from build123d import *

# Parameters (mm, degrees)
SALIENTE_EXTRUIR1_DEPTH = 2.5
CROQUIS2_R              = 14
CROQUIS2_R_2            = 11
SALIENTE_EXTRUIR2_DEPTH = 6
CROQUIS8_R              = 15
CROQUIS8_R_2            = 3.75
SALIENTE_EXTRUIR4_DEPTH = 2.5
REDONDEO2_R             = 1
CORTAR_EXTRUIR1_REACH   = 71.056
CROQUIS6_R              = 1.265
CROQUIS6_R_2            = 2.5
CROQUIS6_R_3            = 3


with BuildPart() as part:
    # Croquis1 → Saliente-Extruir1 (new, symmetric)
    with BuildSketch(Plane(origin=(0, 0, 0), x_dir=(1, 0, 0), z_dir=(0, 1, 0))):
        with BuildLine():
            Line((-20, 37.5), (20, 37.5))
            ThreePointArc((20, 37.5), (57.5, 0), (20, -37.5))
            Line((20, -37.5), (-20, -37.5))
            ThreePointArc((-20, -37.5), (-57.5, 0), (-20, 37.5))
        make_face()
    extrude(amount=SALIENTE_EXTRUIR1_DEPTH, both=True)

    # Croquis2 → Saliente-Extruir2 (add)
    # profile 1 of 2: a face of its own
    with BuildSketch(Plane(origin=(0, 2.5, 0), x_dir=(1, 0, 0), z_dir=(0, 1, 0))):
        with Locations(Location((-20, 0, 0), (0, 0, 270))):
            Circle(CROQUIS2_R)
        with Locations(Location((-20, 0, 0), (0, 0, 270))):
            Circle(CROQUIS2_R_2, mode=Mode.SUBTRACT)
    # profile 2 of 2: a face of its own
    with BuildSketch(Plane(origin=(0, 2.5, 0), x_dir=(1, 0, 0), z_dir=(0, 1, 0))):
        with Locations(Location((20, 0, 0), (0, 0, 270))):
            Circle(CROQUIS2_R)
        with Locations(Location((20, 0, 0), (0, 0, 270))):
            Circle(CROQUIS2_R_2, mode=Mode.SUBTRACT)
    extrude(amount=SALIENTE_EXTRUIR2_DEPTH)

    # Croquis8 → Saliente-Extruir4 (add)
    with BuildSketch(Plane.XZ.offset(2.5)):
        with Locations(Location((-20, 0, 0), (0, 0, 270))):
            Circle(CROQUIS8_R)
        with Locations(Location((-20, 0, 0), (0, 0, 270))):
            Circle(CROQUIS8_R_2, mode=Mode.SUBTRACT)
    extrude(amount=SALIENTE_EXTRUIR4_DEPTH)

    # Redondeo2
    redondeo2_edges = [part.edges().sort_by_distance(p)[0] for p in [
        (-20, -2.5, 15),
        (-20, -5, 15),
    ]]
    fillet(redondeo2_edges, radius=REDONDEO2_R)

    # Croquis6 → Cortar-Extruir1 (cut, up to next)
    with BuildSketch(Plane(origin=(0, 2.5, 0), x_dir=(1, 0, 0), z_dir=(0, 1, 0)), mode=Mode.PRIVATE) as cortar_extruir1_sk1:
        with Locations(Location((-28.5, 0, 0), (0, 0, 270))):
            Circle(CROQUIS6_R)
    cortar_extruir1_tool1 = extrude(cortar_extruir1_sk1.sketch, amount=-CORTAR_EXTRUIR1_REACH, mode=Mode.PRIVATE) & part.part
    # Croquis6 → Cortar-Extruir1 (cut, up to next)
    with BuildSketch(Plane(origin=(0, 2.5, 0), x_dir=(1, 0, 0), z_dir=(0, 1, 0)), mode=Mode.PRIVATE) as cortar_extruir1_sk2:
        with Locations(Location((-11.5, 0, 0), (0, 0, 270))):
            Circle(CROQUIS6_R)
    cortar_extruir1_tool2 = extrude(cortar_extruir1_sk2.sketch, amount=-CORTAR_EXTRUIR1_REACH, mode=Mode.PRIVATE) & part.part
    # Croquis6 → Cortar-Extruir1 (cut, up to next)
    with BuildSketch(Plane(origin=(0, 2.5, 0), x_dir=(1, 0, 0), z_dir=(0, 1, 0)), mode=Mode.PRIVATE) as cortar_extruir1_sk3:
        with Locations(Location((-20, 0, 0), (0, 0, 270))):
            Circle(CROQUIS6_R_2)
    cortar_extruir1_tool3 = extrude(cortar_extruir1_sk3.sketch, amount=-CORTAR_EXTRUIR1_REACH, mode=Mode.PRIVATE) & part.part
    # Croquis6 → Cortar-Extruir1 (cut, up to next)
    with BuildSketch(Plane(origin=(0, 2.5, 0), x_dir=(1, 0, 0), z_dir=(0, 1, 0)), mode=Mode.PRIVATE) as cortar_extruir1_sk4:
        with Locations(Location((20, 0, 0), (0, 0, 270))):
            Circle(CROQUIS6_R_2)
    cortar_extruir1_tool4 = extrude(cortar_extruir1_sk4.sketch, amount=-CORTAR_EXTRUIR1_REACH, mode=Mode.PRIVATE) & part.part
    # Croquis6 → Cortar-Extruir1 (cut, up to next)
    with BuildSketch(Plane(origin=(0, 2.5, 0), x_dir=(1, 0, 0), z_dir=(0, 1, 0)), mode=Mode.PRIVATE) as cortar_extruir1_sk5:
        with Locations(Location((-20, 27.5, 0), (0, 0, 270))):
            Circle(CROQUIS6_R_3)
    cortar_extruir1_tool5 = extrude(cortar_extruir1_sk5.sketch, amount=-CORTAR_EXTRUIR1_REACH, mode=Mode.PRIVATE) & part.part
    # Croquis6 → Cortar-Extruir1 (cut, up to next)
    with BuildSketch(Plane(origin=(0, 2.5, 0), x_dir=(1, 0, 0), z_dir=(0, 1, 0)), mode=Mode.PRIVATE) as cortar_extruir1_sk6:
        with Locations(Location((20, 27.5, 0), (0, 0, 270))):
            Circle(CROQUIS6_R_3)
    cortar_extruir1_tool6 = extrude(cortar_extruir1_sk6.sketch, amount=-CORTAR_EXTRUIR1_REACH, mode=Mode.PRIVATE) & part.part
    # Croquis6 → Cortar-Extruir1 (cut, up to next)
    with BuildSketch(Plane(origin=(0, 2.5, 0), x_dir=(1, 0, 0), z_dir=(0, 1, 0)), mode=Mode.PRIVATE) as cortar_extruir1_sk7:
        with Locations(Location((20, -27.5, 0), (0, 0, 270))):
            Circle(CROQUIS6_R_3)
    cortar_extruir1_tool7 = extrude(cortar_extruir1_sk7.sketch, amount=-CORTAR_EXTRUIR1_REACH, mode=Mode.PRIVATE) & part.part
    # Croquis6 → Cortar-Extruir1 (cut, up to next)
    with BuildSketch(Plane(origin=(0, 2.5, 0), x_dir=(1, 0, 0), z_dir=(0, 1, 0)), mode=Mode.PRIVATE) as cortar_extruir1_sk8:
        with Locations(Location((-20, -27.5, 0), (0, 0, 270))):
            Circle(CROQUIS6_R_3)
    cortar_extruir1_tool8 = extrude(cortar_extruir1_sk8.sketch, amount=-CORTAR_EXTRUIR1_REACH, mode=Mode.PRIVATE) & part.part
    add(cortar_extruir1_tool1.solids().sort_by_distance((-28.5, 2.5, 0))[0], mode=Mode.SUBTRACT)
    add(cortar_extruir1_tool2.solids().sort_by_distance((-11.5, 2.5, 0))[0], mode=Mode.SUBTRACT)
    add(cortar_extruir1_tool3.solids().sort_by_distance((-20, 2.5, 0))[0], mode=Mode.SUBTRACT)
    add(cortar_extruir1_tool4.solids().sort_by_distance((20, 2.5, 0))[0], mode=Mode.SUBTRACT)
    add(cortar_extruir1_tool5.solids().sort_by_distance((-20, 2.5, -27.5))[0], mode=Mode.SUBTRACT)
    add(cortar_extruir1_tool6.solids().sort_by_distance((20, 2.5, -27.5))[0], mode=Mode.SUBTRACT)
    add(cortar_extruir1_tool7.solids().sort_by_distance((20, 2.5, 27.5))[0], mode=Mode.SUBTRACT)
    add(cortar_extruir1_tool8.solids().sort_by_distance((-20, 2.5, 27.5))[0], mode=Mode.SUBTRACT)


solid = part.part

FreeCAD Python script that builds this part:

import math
import FreeCAD as App
import Part
import Sketcher


def edges_at(feature, points):
    """Names of the edges that pass closest to the given points."""
    edges = feature.Shape.Edges
    near = lambda p: min(range(len(edges)), key=lambda i: edges[i].distToShape(Part.Vertex(*p))[0])
    return sorted({f"Edge{near(p) + 1}" for p in points})

doc = App.newDocument("Part")
body = doc.addObject("PartDesign::Body", "Body")

# Sketch on XZ plane
sketch1 = body.newObject("Sketcher::SketchObject", "Sketch")
sketch1.AttachmentSupport = (doc.getObject("XZ_Plane"), [""])
sketch1.MapMode = "FlatFace"
sketch1.addGeometry(Part.LineSegment(App.Vector(20, -38, 0), App.Vector(-20, -38, 0)), False)
sketch1.addGeometry(Part.ArcOfCircle(Part.Circle(App.Vector(-20, 0, 0), App.Vector(0, 0, 1), 38), math.radians(90), math.radians(270)), False)
sketch1.addGeometry(Part.LineSegment(App.Vector(-20, 38, 0), App.Vector(20, 38, 0)), False)
sketch1.addGeometry(Part.ArcOfCircle(Part.Circle(App.Vector(20, 0, 0), App.Vector(0, 0, 1), 38), math.radians(-90), math.radians(90)), False)
sketch1.addConstraint(Sketcher.Constraint("Tangent", 0, 2, 1, 2))
sketch1.addConstraint(Sketcher.Constraint("Tangent", 1, 1, 2, 1))
sketch1.addConstraint(Sketcher.Constraint("Tangent", 2, 2, 3, 2))
sketch1.addConstraint(Sketcher.Constraint("Tangent", 3, 1, 0, 1))
sketch1.addConstraint(Sketcher.Constraint("Horizontal", 0))
sketch1.addConstraint(Sketcher.Constraint("Horizontal", 2))
sketch1.addConstraint(Sketcher.Constraint("Symmetric", 1, 3, 3, 3, -1, 1))
sketch1.addConstraint(Sketcher.Constraint("Radius", 1, 37.5))
sketch1.addConstraint(Sketcher.Constraint("DistanceX", 0, 2, 0, 1, 40.0))
pad1 = body.newObject("PartDesign::Pad", "Pad")
pad1.Profile = sketch1
pad1.Length = 5
pad1.Midplane = True

# Sketch on XZ plane
sketch2 = body.newObject("Sketcher::SketchObject", "Sketch001")
sketch2.AttachmentSupport = (doc.getObject("XZ_Plane"), [""])
sketch2.MapMode = "FlatFace"
sketch2.AttachmentOffset = App.Placement(App.Vector(0, 0, -2.5), App.Rotation())
sketch2.addGeometry(Part.Circle(App.Vector(-20, 0, 0), App.Vector(0, 0, 1), 14), False)
sketch2.addGeometry(Part.Circle(App.Vector(-20, 0, 0), App.Vector(0, 0, 1), 11), False)
sketch2.addGeometry(Part.Circle(App.Vector(20, 0, 0), App.Vector(0, 0, 1), 14), False)
sketch2.addGeometry(Part.Circle(App.Vector(20, 0, 0), App.Vector(0, 0, 1), 11), False)
sketch2.addConstraint(Sketcher.Constraint("Coincident", 1, 3, 0, 3))
sketch2.addConstraint(Sketcher.Constraint("Coincident", 3, 3, 2, 3))
sketch2.addConstraint(Sketcher.Constraint("Equal", 0, 2))
sketch2.addConstraint(Sketcher.Constraint("Equal", 1, 3))
sketch2.addConstraint(Sketcher.Constraint("Symmetric", 0, 3, 2, 3, -1, 1))
sketch2.addConstraint(Sketcher.Constraint("PointOnObject", 0, 3, -1))
sketch2.addConstraint(Sketcher.Constraint("Diameter", 0, 28.0))
sketch2.addConstraint(Sketcher.Constraint("Diameter", 1, 22.0))
sketch2.addConstraint(Sketcher.Constraint("DistanceX", 0, 3, -1, 1, 20.0))
pad2 = body.newObject("PartDesign::Pad", "Pad001")
pad2.Profile = sketch2
pad2.Length = 6
pad2.Reversed = True

# Sketch on XZ plane
sketch3 = body.newObject("Sketcher::SketchObject", "Sketch002")
sketch3.AttachmentSupport = (doc.getObject("XZ_Plane"), [""])
sketch3.MapMode = "FlatFace"
sketch3.AttachmentOffset = App.Placement(App.Vector(0, 0, 2.5), App.Rotation())
sketch3.addGeometry(Part.Circle(App.Vector(-20, 0, 0), App.Vector(0, 0, 1), 15), False)
sketch3.addGeometry(Part.Circle(App.Vector(-20, 0, 0), App.Vector(0, 0, 1), 3.8), False)
sketch3.addConstraint(Sketcher.Constraint("Coincident", 1, 3, 0, 3))
sketch3.addConstraint(Sketcher.Constraint("PointOnObject", 0, 3, -1))
sketch3.addConstraint(Sketcher.Constraint("Diameter", 0, 30.0))
sketch3.addConstraint(Sketcher.Constraint("Diameter", 1, 7.5))
sketch3.addConstraint(Sketcher.Constraint("DistanceX", 0, 3, -1, 1, 20.0))
pad3 = body.newObject("PartDesign::Pad", "Pad002")
pad3.Profile = sketch3
pad3.Length = 2.5
doc.recompute()

fillet = body.newObject("PartDesign::Fillet", "Fillet")
fillet.Base = (pad3, edges_at(pad3, [(-20, -2.5, 15), (-20, -5, 15)]))
fillet.Radius = 1

# Sketch on XZ plane
sketch4 = body.newObject("Sketcher::SketchObject", "Sketch003")
sketch4.AttachmentSupport = (doc.getObject("XZ_Plane"), [""])
sketch4.MapMode = "FlatFace"
sketch4.AttachmentOffset = App.Placement(App.Vector(0, 0, -2.5), App.Rotation())
sketch4.addGeometry(Part.Circle(App.Vector(-28.5, 0, 0), App.Vector(0, 0, 1), 1.3), False)
sketch4.addConstraint(Sketcher.Constraint("PointOnObject", 0, 3, -1))
sketch4.addConstraint(Sketcher.Constraint("Diameter", 0, 2.53))
sketch4.addConstraint(Sketcher.Constraint("DistanceX", 0, 3, -1, 1, 28.5))
pocket1 = body.newObject("PartDesign::Pocket", "Pocket")
pocket1.Profile = sketch4
pocket1.Type = "UpToFirst"
pocket1.Reversed = True

# Sketch on XZ plane
sketch5 = body.newObject("Sketcher::SketchObject", "Sketch004")
sketch5.AttachmentSupport = (doc.getObject("XZ_Plane"), [""])
sketch5.MapMode = "FlatFace"
sketch5.AttachmentOffset = App.Placement(App.Vector(0, 0, -2.5), App.Rotation())
sketch5.addGeometry(Part.Circle(App.Vector(-11.5, 0, 0), App.Vector(0, 0, 1), 1.3), False)
sketch5.addConstraint(Sketcher.Constraint("PointOnObject", 0, 3, -1))
sketch5.addConstraint(Sketcher.Constraint("Diameter", 0, 2.53))
sketch5.addConstraint(Sketcher.Constraint("DistanceX", 0, 3, -1, 1, 11.5))
pocket2 = body.newObject("PartDesign::Pocket", "Pocket001")
pocket2.Profile = sketch5
pocket2.Type = "UpToFirst"
pocket2.Reversed = True

# Sketch on XZ plane
sketch6 = body.newObject("Sketcher::SketchObject", "Sketch005")
sketch6.AttachmentSupport = (doc.getObject("XZ_Plane"), [""])
sketch6.MapMode = "FlatFace"
sketch6.AttachmentOffset = App.Placement(App.Vector(0, 0, -2.5), App.Rotation())
sketch6.addGeometry(Part.Circle(App.Vector(-20, 0, 0), App.Vector(0, 0, 1), 2.5), False)
sketch6.addConstraint(Sketcher.Constraint("PointOnObject", 0, 3, -1))
sketch6.addConstraint(Sketcher.Constraint("Diameter", 0, 5.0))
sketch6.addConstraint(Sketcher.Constraint("DistanceX", 0, 3, -1, 1, 20.0))
pocket3 = body.newObject("PartDesign::Pocket", "Pocket002")
pocket3.Profile = sketch6
pocket3.Type = "UpToFirst"
pocket3.Reversed = True

# Sketch on XZ plane
sketch7 = body.newObject("Sketcher::SketchObject", "Sketch006")
sketch7.AttachmentSupport = (doc.getObject("XZ_Plane"), [""])
sketch7.MapMode = "FlatFace"
sketch7.AttachmentOffset = App.Placement(App.Vector(0, 0, -2.5), App.Rotation())
sketch7.addGeometry(Part.Circle(App.Vector(20, 0, 0), App.Vector(0, 0, 1), 2.5), False)
sketch7.addConstraint(Sketcher.Constraint("PointOnObject", 0, 3, -1))
sketch7.addConstraint(Sketcher.Constraint("Diameter", 0, 5.0))
sketch7.addConstraint(Sketcher.Constraint("DistanceX", -1, 1, 0, 3, 20.0))
pocket4 = body.newObject("PartDesign::Pocket", "Pocket003")
pocket4.Profile = sketch7
pocket4.Type = "UpToFirst"
pocket4.Reversed = True

# Sketch on XZ plane
sketch8 = body.newObject("Sketcher::SketchObject", "Sketch007")
sketch8.AttachmentSupport = (doc.getObject("XZ_Plane"), [""])
sketch8.MapMode = "FlatFace"
sketch8.AttachmentOffset = App.Placement(App.Vector(0, 0, -2.5), App.Rotation())
sketch8.addGeometry(Part.Circle(App.Vector(-20, -27.5, 0), App.Vector(0, 0, 1), 3), False)
sketch8.addConstraint(Sketcher.Constraint("Diameter", 0, 6.0))
sketch8.addConstraint(Sketcher.Constraint("DistanceX", 0, 3, -1, 1, 20.0))
sketch8.addConstraint(Sketcher.Constraint("DistanceY", 0, 3, -1, 1, 27.5))
pocket5 = body.newObject("PartDesign::Pocket", "Pocket004")
pocket5.Profile = sketch8
pocket5.Type = "UpToFirst"
pocket5.Reversed = True

# Sketch on XZ plane
sketch9 = body.newObject("Sketcher::SketchObject", "Sketch008")
sketch9.AttachmentSupport = (doc.getObject("XZ_Plane"), [""])
sketch9.MapMode = "FlatFace"
sketch9.AttachmentOffset = App.Placement(App.Vector(0, 0, -2.5), App.Rotation())
sketch9.addGeometry(Part.Circle(App.Vector(20, -27.5, 0), App.Vector(0, 0, 1), 3), False)
sketch9.addConstraint(Sketcher.Constraint("Diameter", 0, 6.0))
sketch9.addConstraint(Sketcher.Constraint("DistanceX", -1, 1, 0, 3, 20.0))
sketch9.addConstraint(Sketcher.Constraint("DistanceY", 0, 3, -1, 1, 27.5))
pocket6 = body.newObject("PartDesign::Pocket", "Pocket005")
pocket6.Profile = sketch9
pocket6.Type = "UpToFirst"
pocket6.Reversed = True

# Sketch on XZ plane
sketch10 = body.newObject("Sketcher::SketchObject", "Sketch009")
sketch10.AttachmentSupport = (doc.getObject("XZ_Plane"), [""])
sketch10.MapMode = "FlatFace"
sketch10.AttachmentOffset = App.Placement(App.Vector(0, 0, -2.5), App.Rotation())
sketch10.addGeometry(Part.Circle(App.Vector(20, 27.5, 0), App.Vector(0, 0, 1), 3), False)
sketch10.addConstraint(Sketcher.Constraint("Diameter", 0, 6.0))
sketch10.addConstraint(Sketcher.Constraint("DistanceX", -1, 1, 0, 3, 20.0))
sketch10.addConstraint(Sketcher.Constraint("DistanceY", -1, 1, 0, 3, 27.5))
pocket7 = body.newObject("PartDesign::Pocket", "Pocket006")
pocket7.Profile = sketch10
pocket7.Type = "UpToFirst"
pocket7.Reversed = True

# Sketch on XZ plane
sketch11 = body.newObject("Sketcher::SketchObject", "Sketch010")
sketch11.AttachmentSupport = (doc.getObject("XZ_Plane"), [""])
sketch11.MapMode = "FlatFace"
sketch11.AttachmentOffset = App.Placement(App.Vector(0, 0, -2.5), App.Rotation())
sketch11.addGeometry(Part.Circle(App.Vector(-20, 27.5, 0), App.Vector(0, 0, 1), 3), False)
sketch11.addConstraint(Sketcher.Constraint("Diameter", 0, 6.0))
sketch11.addConstraint(Sketcher.Constraint("DistanceX", 0, 3, -1, 1, 20.0))
sketch11.addConstraint(Sketcher.Constraint("DistanceY", -1, 1, 0, 3, 27.5))
pocket8 = body.newObject("PartDesign::Pocket", "Pocket007")
pocket8.Profile = sketch11
pocket8.Type = "UpToFirst"
pocket8.Reversed = True

doc.recompute()
